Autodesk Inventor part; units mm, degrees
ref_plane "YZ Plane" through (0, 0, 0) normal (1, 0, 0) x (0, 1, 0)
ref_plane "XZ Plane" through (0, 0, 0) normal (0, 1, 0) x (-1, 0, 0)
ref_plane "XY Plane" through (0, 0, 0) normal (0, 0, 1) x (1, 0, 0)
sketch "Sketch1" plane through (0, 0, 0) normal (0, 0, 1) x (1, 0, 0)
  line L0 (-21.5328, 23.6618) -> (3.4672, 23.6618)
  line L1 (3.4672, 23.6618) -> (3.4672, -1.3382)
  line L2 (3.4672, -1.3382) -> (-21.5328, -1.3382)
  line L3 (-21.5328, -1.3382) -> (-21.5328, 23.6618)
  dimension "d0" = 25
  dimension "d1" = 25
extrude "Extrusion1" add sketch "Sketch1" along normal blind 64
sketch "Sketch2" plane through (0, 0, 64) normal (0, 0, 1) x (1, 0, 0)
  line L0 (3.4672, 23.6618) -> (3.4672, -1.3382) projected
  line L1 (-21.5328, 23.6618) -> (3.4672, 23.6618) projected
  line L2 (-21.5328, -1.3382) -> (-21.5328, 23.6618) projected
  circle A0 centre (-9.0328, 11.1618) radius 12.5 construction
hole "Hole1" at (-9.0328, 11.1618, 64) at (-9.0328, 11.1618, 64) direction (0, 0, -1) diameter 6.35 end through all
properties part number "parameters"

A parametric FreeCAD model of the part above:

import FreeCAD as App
import Part
import Sketcher
from FreeCAD import Vector

doc = App.newDocument("Part")
body = doc.addObject("PartDesign::Body", "Body")

sketch1 = doc.addObject("Sketcher::SketchObject", "Sketch")
body.addObject(sketch1)
sketch1.AttachmentSupport = (doc.XY_Plane, [""])
sketch1.MapMode = "FlatFace"
sketch1.addGeometry(Part.LineSegment(Vector(3, 24, 0), Vector(-22, 24, 0)), False)
sketch1.addGeometry(Part.LineSegment(Vector(-22, 24, 0), Vector(-22, -1, 0)), False)
sketch1.addGeometry(Part.LineSegment(Vector(-22, -1, 0), Vector(3, -1, 0)), False)
sketch1.addGeometry(Part.LineSegment(Vector(3, -1, 0), Vector(3, 24, 0)), False)
sketch1.addConstraint(Sketcher.Constraint("Coincident", 0, 2, 1, 1))
sketch1.addConstraint(Sketcher.Constraint("Coincident", 1, 2, 2, 1))
sketch1.addConstraint(Sketcher.Constraint("Coincident", 2, 2, 3, 1))
sketch1.addConstraint(Sketcher.Constraint("Coincident", 3, 2, 0, 1))
sketch1.addConstraint(Sketcher.Constraint("Horizontal", 0))
sketch1.addConstraint(Sketcher.Constraint("Vertical", 1))
sketch1.addConstraint(Sketcher.Constraint("Horizontal", 2))
sketch1.addConstraint(Sketcher.Constraint("Vertical", 3))
sketch1.addConstraint(Sketcher.Constraint("Equal", 2, 1))
sketch1.addConstraint(Sketcher.Constraint("DistanceX", 0, 2, 0, 1, 25.0))
sketch1.addConstraint(Sketcher.Constraint("DistanceX", 0, 2, -1, 1, 21.5328))
sketch1.addConstraint(Sketcher.Constraint("DistanceY", -1, 1, 0, 2, 23.6618))
pad1 = doc.addObject("PartDesign::Pad", "Pad")
body.addObject(pad1)
pad1.Profile = sketch1
pad1.Length = 64

sketch2 = doc.addObject("Sketcher::SketchObject", "Sketch001")
body.addObject(sketch2)
sketch2.AttachmentSupport = (doc.XY_Plane, [""])
sketch2.MapMode = "FlatFace"
sketch2.AttachmentOffset = App.Placement(Vector(0, 0, 64), App.Rotation())
sketch2.addGeometry(Part.Circle(Vector(-9, 11.2, 0), Vector(0, 0, 1), 3.2), False)
sketch2.addGeometry(Part.Circle(Vector(-9, 11.2, 0), Vector(0, 0, 1), 3.2), False)
sketch2.addConstraint(Sketcher.Constraint("Coincident", 1, 3, 0, 3))
sketch2.addConstraint(Sketcher.Constraint("Equal", 0, 1))
sketch2.addConstraint(Sketcher.Constraint("Diameter", 0, 6.35))
sketch2.addConstraint(Sketcher.Constraint("DistanceX", 0, 3, -1, 1, 9.0328))
sketch2.addConstraint(Sketcher.Constraint("DistanceY", -1, 1, 0, 3, 11.1618))
doc.recompute()
hole = doc.addObject("PartDesign::Hole", "Hole")
body.addObject(hole)
hole.Profile = sketch2
hole.ThreadType = "None"
hole.Diameter = 6.35
hole.DepthType = "ThroughAll"

doc.recompute()
